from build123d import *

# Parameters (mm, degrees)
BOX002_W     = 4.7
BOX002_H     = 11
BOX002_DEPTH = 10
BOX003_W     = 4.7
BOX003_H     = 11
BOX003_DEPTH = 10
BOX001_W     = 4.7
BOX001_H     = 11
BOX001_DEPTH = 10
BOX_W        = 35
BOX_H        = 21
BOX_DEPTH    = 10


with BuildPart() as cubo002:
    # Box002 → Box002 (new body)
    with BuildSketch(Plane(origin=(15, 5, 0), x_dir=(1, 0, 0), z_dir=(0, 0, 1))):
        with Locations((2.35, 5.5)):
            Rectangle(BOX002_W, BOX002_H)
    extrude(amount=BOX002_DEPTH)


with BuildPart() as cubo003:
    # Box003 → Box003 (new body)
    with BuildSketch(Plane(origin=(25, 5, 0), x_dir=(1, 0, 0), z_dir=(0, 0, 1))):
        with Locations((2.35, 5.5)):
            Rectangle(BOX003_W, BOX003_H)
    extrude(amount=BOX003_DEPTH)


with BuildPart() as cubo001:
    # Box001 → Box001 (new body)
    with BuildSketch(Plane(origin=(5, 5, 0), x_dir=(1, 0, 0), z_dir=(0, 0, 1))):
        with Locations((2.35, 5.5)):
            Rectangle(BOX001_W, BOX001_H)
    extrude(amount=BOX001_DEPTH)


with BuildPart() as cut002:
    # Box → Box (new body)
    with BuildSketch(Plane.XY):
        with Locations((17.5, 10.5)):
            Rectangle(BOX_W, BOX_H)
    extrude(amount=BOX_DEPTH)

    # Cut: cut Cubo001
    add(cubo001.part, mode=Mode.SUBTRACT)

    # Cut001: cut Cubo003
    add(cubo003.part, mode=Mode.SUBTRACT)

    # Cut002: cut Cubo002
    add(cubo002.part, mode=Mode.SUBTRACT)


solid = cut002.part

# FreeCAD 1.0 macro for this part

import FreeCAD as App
import Part
import Sketcher
from FreeCAD import Vector
Q = App.Units.Quantity


def add_polygon(sketch, points):
    """Adds a closed chain of lines whose ends are joined by coincident constraints."""
    first, n = sketch.GeometryCount, len(points)
    for a, b in zip(points, points[1:] + points[:1]):
        sketch.addGeometry(Part.LineSegment(App.Vector(*a, 0), App.Vector(*b, 0)), False)
    for i in range(n):
        sketch.addConstraint(Sketcher.Constraint("Coincident", first + i, 2, first + (i + 1) % n, 1))

doc = App.newDocument("Part")
body = doc.addObject("PartDesign::Body", "Body")

# Sketch on XY plane
sketch1 = body.newObject("Sketcher::SketchObject", "Sketch")
sketch1.AttachmentSupport = (doc.getObject("XY_Plane"), [""])
sketch1.MapMode = "FlatFace"
add_polygon(sketch1, [(15, 16), (15, 5), (19.7, 5), (19.7, 16)])  # lines 0-3
sketch1.addConstraint(Sketcher.Constraint("Vertical", 0))
sketch1.addConstraint(Sketcher.Constraint("Horizontal", 1))
sketch1.addConstraint(Sketcher.Constraint("Vertical", 2))
sketch1.addConstraint(Sketcher.Constraint("Horizontal", 3))
sketch1.addConstraint(Sketcher.Constraint("DistanceY", 0, 2, 0, 1, Q("11 mm")))
sketch1.addConstraint(Sketcher.Constraint("DistanceX", 1, 1, 1, 2, Q("4.7 mm")))
sketch1.addConstraint(Sketcher.Constraint("DistanceX", -1, 1, 0, 2, Q("15 mm")))
sketch1.addConstraint(Sketcher.Constraint("DistanceY", -1, 1, 0, 2, Q("5 mm")))
pad1 = body.newObject("PartDesign::Pad", "Pad")
pad1.Profile = sketch1
pad1.Length = 10
body2 = doc.addObject("PartDesign::Body", "Body001")

# Sketch on XY plane
sketch2 = body2.newObject("Sketcher::SketchObject", "Sketch001")
sketch2.AttachmentSupport = (doc.getObject("XY_Plane001"), [""])
sketch2.MapMode = "FlatFace"
add_polygon(sketch2, [(25, 16), (25, 5), (29.7, 5), (29.7, 16)])  # lines 0-3
sketch2.addConstraint(Sketcher.Constraint("Vertical", 0))
sketch2.addConstraint(Sketcher.Constraint("Horizontal", 1))
sketch2.addConstraint(Sketcher.Constraint("Vertical", 2))
sketch2.addConstraint(Sketcher.Constraint("Horizontal", 3))
sketch2.addConstraint(Sketcher.Constraint("DistanceY", 0, 2, 0, 1, Q("11 mm")))
sketch2.addConstraint(Sketcher.Constraint("DistanceX", 1, 1, 1, 2, Q("4.7 mm")))
sketch2.addConstraint(Sketcher.Constraint("DistanceX", -1, 1, 0, 2, Q("25 mm")))
sketch2.addConstraint(Sketcher.Constraint("DistanceY", -1, 1, 0, 2, Q("5 mm")))
pad2 = body2.newObject("PartDesign::Pad", "Pad001")
pad2.Profile = sketch2
pad2.Length = 10
body3 = doc.addObject("PartDesign::Body", "Body002")

# Sketch on XY plane
sketch3 = body3.newObject("Sketcher::SketchObject", "Sketch002")
sketch3.AttachmentSupport = (doc.getObject("XY_Plane002"), [""])
sketch3.MapMode = "FlatFace"
add_polygon(sketch3, [(5, 16), (5, 5), (9.7, 5), (9.7, 16)])  # lines 0-3
sketch3.addConstraint(Sketcher.Constraint("Vertical", 0))
sketch3.addConstraint(Sketcher.Constraint("Horizontal", 1))
sketch3.addConstraint(Sketcher.Constraint("Vertical", 2))
sketch3.addConstraint(Sketcher.Constraint("Horizontal", 3))
sketch3.addConstraint(Sketcher.Constraint("DistanceY", 0, 2, 0, 1, Q("11 mm")))
sketch3.addConstraint(Sketcher.Constraint("DistanceX", 1, 1, 1, 2, Q("4.7 mm")))
sketch3.addConstraint(Sketcher.Constraint("DistanceX", -1, 1, 0, 2, Q("5 mm")))
sketch3.addConstraint(Sketcher.Constraint("DistanceY", -1, 1, 0, 2, Q("5 mm")))
pad3 = body3.newObject("PartDesign::Pad", "Pad002")
pad3.Profile = sketch3
pad3.Length = 10
body4 = doc.addObject("PartDesign::Body", "Body003")

# Sketch on XY plane
sketch4 = body4.newObject("Sketcher::SketchObject", "Sketch003")
sketch4.AttachmentSupport = (doc.getObject("XY_Plane003"), [""])
sketch4.MapMode = "FlatFace"
add_polygon(sketch4, [(0, 21), (0, 0), (35, 0), (35, 21)])  # lines 0-3
sketch4.addConstraint(Sketcher.Constraint("Vertical", 0))
sketch4.addConstraint(Sketcher.Constraint("Horizontal", 1))
sketch4.addConstraint(Sketcher.Constraint("Vertical", 2))
sketch4.addConstraint(Sketcher.Constraint("Horizontal", 3))
sketch4.addConstraint(Sketcher.Constraint("Coincident", 0, 2, -1, 1))
sketch4.addConstraint(Sketcher.Constraint("DistanceX", 1, 1, 1, 2, Q("35 mm")))
sketch4.addConstraint(Sketcher.Constraint("DistanceY", 0, 2, 0, 1, Q("21 mm")))
pad4 = body4.newObject("PartDesign::Pad", "Pad003")
pad4.Profile = sketch4
pad4.Length = 10
doc.recompute()

boolean = body4.newObject("PartDesign::Boolean", "Boolean")
boolean.Type = "Cut"
boolean.addObjects([body3])
doc.recompute()

boolean2 = body4.newObject("PartDesign::Boolean", "Boolean001")
boolean2.Type = "Cut"
boolean2.addObjects([body2])
doc.recompute()

boolean3 = body4.newObject("PartDesign::Boolean", "Boolean002")
boolean3.Type = "Cut"
boolean3.addObjects([body])

doc.recompute()
